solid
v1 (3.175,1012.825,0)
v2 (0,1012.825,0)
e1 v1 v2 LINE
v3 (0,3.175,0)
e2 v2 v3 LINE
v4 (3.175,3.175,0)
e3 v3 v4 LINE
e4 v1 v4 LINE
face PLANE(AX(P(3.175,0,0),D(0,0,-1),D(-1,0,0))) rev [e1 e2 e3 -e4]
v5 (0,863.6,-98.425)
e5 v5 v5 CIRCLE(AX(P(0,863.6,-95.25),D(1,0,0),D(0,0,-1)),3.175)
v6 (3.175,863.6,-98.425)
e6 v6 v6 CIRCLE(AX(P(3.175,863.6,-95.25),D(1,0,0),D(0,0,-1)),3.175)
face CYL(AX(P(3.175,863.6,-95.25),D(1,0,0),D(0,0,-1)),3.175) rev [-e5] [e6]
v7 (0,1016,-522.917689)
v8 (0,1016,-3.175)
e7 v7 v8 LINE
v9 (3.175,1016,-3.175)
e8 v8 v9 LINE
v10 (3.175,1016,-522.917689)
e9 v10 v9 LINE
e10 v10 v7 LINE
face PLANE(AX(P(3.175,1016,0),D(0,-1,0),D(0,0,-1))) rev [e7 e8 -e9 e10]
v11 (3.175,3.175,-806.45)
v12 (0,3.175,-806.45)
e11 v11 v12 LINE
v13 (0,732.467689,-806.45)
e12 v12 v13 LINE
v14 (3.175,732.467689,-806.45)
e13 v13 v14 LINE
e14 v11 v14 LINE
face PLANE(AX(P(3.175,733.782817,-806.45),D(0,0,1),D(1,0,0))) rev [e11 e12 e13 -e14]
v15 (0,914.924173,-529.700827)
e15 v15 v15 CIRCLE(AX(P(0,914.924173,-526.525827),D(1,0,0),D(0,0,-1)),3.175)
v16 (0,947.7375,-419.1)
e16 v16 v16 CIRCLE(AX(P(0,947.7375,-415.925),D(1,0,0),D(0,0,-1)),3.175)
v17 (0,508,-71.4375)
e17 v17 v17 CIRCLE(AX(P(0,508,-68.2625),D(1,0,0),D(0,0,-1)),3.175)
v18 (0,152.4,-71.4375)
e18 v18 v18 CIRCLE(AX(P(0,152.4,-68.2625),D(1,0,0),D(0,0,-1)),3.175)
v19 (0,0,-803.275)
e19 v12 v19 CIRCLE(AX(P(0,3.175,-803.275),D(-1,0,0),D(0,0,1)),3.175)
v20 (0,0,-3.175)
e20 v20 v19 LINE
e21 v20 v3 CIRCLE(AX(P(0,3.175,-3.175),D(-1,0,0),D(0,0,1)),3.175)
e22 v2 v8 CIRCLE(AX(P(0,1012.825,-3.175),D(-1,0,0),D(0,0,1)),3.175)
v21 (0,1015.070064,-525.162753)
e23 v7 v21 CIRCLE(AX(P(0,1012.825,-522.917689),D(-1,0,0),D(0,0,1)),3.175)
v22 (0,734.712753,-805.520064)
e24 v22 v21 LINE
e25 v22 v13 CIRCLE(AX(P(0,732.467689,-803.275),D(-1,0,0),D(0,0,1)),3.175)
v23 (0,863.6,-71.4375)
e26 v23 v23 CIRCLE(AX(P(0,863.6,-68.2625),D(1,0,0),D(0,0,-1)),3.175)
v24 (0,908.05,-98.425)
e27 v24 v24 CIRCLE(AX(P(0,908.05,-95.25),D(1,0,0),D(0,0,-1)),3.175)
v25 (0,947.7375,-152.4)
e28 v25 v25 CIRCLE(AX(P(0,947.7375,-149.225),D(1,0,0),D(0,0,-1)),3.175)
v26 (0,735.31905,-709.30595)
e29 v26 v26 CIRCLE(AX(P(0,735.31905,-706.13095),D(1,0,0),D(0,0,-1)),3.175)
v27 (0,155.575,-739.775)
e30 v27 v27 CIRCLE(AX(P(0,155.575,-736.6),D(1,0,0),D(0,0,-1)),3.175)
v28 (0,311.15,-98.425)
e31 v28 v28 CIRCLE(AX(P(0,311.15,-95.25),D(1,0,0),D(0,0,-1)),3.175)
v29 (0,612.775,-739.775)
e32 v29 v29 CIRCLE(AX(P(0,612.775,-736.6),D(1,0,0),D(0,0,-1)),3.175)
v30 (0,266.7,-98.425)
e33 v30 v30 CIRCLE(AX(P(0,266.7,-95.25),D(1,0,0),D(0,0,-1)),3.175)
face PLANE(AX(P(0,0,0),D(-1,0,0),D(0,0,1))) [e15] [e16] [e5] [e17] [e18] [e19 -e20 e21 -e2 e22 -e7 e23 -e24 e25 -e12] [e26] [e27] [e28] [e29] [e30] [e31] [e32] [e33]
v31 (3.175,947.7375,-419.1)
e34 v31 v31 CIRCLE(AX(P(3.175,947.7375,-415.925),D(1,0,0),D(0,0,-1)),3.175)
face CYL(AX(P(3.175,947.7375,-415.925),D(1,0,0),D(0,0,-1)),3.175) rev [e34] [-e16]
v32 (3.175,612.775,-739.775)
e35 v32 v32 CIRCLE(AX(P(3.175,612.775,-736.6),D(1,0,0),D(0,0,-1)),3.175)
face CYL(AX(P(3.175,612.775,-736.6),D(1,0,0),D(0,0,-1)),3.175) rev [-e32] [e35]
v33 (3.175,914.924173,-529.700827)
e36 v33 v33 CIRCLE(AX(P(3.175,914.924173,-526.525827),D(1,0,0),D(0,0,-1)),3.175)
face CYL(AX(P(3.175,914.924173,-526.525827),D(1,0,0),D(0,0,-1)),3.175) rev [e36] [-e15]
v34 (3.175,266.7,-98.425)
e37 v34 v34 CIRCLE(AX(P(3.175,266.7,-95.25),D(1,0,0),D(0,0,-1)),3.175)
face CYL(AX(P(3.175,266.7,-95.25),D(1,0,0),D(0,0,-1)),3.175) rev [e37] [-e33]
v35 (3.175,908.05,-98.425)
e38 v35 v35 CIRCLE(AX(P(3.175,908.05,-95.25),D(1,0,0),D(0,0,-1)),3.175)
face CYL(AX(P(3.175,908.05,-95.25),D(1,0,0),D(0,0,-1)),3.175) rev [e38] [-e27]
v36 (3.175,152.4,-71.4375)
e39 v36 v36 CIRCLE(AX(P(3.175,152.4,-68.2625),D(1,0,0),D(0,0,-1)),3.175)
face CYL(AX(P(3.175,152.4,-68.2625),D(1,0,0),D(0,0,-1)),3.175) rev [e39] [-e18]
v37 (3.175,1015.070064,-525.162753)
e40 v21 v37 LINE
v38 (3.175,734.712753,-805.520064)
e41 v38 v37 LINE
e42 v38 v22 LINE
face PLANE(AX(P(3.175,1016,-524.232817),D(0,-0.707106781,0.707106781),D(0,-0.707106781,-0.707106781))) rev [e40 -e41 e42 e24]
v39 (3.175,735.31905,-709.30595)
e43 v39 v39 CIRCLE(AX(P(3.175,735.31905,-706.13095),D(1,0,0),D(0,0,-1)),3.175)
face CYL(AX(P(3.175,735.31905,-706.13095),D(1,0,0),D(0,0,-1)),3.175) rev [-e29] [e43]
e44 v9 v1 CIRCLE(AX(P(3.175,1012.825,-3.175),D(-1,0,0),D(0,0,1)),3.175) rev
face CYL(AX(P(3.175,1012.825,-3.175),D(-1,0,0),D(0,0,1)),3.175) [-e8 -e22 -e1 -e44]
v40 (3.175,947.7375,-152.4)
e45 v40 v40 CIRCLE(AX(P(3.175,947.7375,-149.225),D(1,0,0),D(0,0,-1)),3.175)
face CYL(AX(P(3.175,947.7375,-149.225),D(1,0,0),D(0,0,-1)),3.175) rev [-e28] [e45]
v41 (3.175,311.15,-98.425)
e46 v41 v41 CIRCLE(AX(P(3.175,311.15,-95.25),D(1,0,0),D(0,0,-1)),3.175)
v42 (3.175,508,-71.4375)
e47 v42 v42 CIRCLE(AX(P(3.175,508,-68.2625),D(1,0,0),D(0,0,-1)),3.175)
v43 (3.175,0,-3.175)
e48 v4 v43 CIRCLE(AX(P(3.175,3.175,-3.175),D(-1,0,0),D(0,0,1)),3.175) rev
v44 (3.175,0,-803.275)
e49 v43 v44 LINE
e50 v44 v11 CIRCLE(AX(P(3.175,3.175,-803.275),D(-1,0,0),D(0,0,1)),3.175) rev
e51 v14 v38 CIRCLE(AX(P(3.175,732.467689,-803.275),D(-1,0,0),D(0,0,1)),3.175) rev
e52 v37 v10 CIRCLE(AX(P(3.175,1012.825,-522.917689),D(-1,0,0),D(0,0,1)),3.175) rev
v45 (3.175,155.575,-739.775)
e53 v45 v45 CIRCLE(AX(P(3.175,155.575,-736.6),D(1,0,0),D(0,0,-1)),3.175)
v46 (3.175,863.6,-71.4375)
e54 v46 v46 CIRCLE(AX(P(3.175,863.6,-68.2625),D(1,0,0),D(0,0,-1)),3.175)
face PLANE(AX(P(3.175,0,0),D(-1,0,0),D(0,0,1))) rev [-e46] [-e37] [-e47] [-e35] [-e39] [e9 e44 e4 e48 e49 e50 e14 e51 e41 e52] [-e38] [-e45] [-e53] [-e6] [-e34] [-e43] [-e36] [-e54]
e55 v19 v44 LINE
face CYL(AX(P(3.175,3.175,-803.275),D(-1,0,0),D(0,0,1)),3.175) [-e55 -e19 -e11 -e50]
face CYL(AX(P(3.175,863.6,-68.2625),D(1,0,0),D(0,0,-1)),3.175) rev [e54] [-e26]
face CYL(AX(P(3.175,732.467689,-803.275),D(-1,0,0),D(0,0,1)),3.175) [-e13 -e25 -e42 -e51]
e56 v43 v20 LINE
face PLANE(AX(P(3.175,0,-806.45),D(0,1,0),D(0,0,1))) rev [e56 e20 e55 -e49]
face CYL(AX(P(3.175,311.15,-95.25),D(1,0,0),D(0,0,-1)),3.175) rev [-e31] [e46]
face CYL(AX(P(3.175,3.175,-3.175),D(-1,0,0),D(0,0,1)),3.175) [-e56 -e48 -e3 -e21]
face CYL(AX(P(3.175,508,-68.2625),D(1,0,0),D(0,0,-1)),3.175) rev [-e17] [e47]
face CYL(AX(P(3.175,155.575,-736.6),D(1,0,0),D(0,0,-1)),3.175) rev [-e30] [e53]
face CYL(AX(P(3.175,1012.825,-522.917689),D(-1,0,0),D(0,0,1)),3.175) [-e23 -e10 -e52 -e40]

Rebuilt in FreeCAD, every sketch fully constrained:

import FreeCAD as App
import Part
import Sketcher

V = App.Vector
Q = App.Units.Quantity


def edges_at(feature, points):
    """Names of the edges that pass closest to the given points."""
    edges = feature.Shape.Edges
    near = lambda p: min(range(len(edges)), key=lambda i: edges[i].distToShape(Part.Vertex(*p))[0])
    return sorted({f"Edge{near(p) + 1}" for p in points})

doc = App.newDocument("Part")
body = doc.addObject("PartDesign::Body", "Body")

# Sketch on YZ plane
sketch1 = doc.addObject("Sketcher::SketchObject", "Sketch")
body.addObject(sketch1)
sketch1.AttachmentSupport = (doc.YZ_Plane, [""])
sketch1.MapMode = "FlatFace"
sketch1.addGeometry([
    Part.LineSegment(V(1016, 0, 0), V(0, 0, 0)),  # 0
    Part.LineSegment(V(0, 0, 0), V(0, -806.45, 0)),  # 1
    Part.LineSegment(V(0, -806.45, 0), V(733.782817, -806.45, 0)),  # 2
    Part.LineSegment(V(733.782817, -806.45, 0), V(1016, -524.232817, 0)),  # 3
    Part.LineSegment(V(1016, -524.232817, 0), V(1016, 0, 0)),  # 4
], False)
sketch1.addConstraint([
    Sketcher.Constraint("Coincident", 0, 2, 1, 1),
    Sketcher.Constraint("Coincident", 1, 2, 2, 1),
    Sketcher.Constraint("Coincident", 2, 2, 3, 1),
    Sketcher.Constraint("Coincident", 3, 2, 4, 1),
    Sketcher.Constraint("Coincident", 4, 2, 0, 1),
    Sketcher.Constraint("Horizontal", 0),
    Sketcher.Constraint("Vertical", 1),
    Sketcher.Constraint("Horizontal", 2),
    Sketcher.Constraint("Vertical", 4),
    Sketcher.Constraint("Coincident", 0, 2, -1, 1),
    Sketcher.Constraint("DistanceX", 0, 2, 0, 1, Q("40 in")),
    Sketcher.Constraint("Angle", 3, Q("45 deg")),
    Sketcher.Constraint("DistanceY", 1, 2, 1, 1, Q("31.75 in")),
    Sketcher.Constraint("DistanceX", 2, 1, 2, 2, Q("733.782817 mm")),
])
pad1 = doc.addObject("PartDesign::Pad", "Pad")
body.addObject(pad1)
pad1.Profile = sketch1
pad1.Length = Q("0.125 in")

# Sketch on YZ plane
sketch2 = doc.addObject("Sketcher::SketchObject", "Sketch001")
body.addObject(sketch2)
sketch2.AttachmentSupport = (doc.YZ_Plane, [""])
sketch2.MapMode = "FlatFace"
sketch2.AttachmentOffset = App.Placement(V(0, 0, 0.125 * 25.4), App.Rotation())
sketch2.addGeometry([
    Part.Circle(V(908.05, -95.25, 0), V(0, 0, 1), 3.175),  # 0
    Part.Circle(V(152.4, -68.2625, 0), V(0, 0, 1), 3.175),  # 1
    Part.Circle(V(508, -68.2625, 0), V(0, 0, 1), 3.175),  # 2
    Part.Circle(V(863.6, -68.2625, 0), V(0, 0, 1), 3.175),  # 3
    Part.Circle(V(947.7375, -149.225, 0), V(0, 0, 1), 3.175),  # 4
    Part.Circle(V(947.7375, -415.925, 0), V(0, 0, 1), 3.175),  # 5
    Part.Circle(V(155.575, -736.6, 0), V(0, 0, 1), 3.175),  # 6
    Part.Circle(V(612.775, -736.6, 0), V(0, 0, 1), 3.175),  # 7
    Part.Circle(V(735.31905, -706.13095, 0), V(0, 0, 1), 3.175),  # 8
    Part.Circle(V(914.924173, -526.525827, 0), V(0, 0, 1), 3.175),  # 9
    Part.Circle(V(266.7, -95.25, 0), V(0, 0, 1), 3.175),  # 10
    Part.Circle(V(311.15, -95.25, 0), V(0, 0, 1), 3.175),  # 11
    Part.Circle(V(863.6, -95.25, 0), V(0, 0, 1), 3.175),  # 12
], False)
sketch2.addConstraint([
    Sketcher.Constraint("Equal", 0, 1),
    Sketcher.Constraint("Equal", 1, 2),
    Sketcher.Constraint("Equal", 2, 3),
    Sketcher.Constraint("Equal", 3, 4),
    Sketcher.Constraint("Equal", 4, 5),
    Sketcher.Constraint("Equal", 5, 6),
    Sketcher.Constraint("Equal", 6, 7),
    Sketcher.Constraint("Equal", 7, 8),
    Sketcher.Constraint("Equal", 8, 9),
    Sketcher.Constraint("Equal", 9, 10),
    Sketcher.Constraint("Equal", 10, 11),
    Sketcher.Constraint("Equal", 11, 12),
    Sketcher.Constraint("Horizontal", 1, 3, 2, 3),
    Sketcher.Constraint("Horizontal", 2, 3, 3, 3),
    Sketcher.Constraint("Horizontal", 6, 3, 7, 3),
    Sketcher.Constraint("Horizontal", 0, 3, 10, 3),
    Sketcher.Constraint("Horizontal", 10, 3, 11, 3),
    Sketcher.Constraint("Horizontal", 11, 3, 12, 3),
    Sketcher.Constraint("Vertical", 4, 3, 5, 3),
    Sketcher.Constraint("Vertical", 3, 3, 12, 3),
    Sketcher.Constraint("Diameter", 0, Q("0.25 in")),
    Sketcher.Constraint("DistanceX", -1, 1, 1, 3, Q("6 in")),
    Sketcher.Constraint("DistanceX", -1, 1, 2, 3, Q("20 in")),
    Sketcher.Constraint("DistanceX", -1, 1, 3, 3, Q("34 in")),
    Sketcher.Constraint("DistanceY", 6, 3, -1, 1, Q("29 in")),
    Sketcher.Constraint("DistanceX", 6, 3, 7, 3, Q("18 in")),
    Sketcher.Constraint("DistanceX", -1, 1, 10, 3, Q("10.5 in")),
    Sketcher.Constraint("DistanceY", 5, 3, 4, 3, Q("10.5 in")),
    Sketcher.Constraint("DistanceX", 11, 3, 0, 3, Q("23.5 in")),
    Sketcher.Constraint("DistanceX", -1, 1, 0, 3, Q("35.75 in")),
    Sketcher.Constraint("DistanceY", 0, 3, -1, 1, Q("3.75 in")),
    Sketcher.Constraint("DistanceY", 1, 3, -1, 1, Q("2.6875 in")),
    Sketcher.Constraint("DistanceX", -1, 1, 4, 3, Q("37.3125 in")),
    Sketcher.Constraint("DistanceY", 4, 3, -1, 1, Q("5.875 in")),
    Sketcher.Constraint("DistanceX", -1, 1, 6, 3, Q("6.125 in")),
    Sketcher.Constraint("DistanceX", -1, 1, 8, 3, Q("735.31905 mm")),
    Sketcher.Constraint("DistanceY", 8, 3, -1, 1, Q("706.13095 mm")),
    Sketcher.Constraint("DistanceX", -1, 1, 9, 3, Q("914.924173 mm")),
    Sketcher.Constraint("DistanceY", 9, 3, -1, 1, Q("526.525827 mm")),
])
doc.recompute()
hole = doc.addObject("PartDesign::Hole", "Hole")
body.addObject(hole)
hole.Profile = sketch2
hole.ThreadType = "None"
hole.Diameter = Q("0.25 in")
hole.DepthType = "ThroughAll"
doc.recompute()

fillet = doc.addObject("PartDesign::Fillet", "Fillet")
body.addObject(fillet)
fillet.Base = (hole, edges_at(hole, [
    (1.587, 0, 0),
    (1.587, 1016, 0),
    (1.587, 1016, -524.233),
    (1.587, 733.783, -806.45),
    (1.587, 0, -806.45),
]))
fillet.Radius = Q("0.125 in")

doc.recompute()
